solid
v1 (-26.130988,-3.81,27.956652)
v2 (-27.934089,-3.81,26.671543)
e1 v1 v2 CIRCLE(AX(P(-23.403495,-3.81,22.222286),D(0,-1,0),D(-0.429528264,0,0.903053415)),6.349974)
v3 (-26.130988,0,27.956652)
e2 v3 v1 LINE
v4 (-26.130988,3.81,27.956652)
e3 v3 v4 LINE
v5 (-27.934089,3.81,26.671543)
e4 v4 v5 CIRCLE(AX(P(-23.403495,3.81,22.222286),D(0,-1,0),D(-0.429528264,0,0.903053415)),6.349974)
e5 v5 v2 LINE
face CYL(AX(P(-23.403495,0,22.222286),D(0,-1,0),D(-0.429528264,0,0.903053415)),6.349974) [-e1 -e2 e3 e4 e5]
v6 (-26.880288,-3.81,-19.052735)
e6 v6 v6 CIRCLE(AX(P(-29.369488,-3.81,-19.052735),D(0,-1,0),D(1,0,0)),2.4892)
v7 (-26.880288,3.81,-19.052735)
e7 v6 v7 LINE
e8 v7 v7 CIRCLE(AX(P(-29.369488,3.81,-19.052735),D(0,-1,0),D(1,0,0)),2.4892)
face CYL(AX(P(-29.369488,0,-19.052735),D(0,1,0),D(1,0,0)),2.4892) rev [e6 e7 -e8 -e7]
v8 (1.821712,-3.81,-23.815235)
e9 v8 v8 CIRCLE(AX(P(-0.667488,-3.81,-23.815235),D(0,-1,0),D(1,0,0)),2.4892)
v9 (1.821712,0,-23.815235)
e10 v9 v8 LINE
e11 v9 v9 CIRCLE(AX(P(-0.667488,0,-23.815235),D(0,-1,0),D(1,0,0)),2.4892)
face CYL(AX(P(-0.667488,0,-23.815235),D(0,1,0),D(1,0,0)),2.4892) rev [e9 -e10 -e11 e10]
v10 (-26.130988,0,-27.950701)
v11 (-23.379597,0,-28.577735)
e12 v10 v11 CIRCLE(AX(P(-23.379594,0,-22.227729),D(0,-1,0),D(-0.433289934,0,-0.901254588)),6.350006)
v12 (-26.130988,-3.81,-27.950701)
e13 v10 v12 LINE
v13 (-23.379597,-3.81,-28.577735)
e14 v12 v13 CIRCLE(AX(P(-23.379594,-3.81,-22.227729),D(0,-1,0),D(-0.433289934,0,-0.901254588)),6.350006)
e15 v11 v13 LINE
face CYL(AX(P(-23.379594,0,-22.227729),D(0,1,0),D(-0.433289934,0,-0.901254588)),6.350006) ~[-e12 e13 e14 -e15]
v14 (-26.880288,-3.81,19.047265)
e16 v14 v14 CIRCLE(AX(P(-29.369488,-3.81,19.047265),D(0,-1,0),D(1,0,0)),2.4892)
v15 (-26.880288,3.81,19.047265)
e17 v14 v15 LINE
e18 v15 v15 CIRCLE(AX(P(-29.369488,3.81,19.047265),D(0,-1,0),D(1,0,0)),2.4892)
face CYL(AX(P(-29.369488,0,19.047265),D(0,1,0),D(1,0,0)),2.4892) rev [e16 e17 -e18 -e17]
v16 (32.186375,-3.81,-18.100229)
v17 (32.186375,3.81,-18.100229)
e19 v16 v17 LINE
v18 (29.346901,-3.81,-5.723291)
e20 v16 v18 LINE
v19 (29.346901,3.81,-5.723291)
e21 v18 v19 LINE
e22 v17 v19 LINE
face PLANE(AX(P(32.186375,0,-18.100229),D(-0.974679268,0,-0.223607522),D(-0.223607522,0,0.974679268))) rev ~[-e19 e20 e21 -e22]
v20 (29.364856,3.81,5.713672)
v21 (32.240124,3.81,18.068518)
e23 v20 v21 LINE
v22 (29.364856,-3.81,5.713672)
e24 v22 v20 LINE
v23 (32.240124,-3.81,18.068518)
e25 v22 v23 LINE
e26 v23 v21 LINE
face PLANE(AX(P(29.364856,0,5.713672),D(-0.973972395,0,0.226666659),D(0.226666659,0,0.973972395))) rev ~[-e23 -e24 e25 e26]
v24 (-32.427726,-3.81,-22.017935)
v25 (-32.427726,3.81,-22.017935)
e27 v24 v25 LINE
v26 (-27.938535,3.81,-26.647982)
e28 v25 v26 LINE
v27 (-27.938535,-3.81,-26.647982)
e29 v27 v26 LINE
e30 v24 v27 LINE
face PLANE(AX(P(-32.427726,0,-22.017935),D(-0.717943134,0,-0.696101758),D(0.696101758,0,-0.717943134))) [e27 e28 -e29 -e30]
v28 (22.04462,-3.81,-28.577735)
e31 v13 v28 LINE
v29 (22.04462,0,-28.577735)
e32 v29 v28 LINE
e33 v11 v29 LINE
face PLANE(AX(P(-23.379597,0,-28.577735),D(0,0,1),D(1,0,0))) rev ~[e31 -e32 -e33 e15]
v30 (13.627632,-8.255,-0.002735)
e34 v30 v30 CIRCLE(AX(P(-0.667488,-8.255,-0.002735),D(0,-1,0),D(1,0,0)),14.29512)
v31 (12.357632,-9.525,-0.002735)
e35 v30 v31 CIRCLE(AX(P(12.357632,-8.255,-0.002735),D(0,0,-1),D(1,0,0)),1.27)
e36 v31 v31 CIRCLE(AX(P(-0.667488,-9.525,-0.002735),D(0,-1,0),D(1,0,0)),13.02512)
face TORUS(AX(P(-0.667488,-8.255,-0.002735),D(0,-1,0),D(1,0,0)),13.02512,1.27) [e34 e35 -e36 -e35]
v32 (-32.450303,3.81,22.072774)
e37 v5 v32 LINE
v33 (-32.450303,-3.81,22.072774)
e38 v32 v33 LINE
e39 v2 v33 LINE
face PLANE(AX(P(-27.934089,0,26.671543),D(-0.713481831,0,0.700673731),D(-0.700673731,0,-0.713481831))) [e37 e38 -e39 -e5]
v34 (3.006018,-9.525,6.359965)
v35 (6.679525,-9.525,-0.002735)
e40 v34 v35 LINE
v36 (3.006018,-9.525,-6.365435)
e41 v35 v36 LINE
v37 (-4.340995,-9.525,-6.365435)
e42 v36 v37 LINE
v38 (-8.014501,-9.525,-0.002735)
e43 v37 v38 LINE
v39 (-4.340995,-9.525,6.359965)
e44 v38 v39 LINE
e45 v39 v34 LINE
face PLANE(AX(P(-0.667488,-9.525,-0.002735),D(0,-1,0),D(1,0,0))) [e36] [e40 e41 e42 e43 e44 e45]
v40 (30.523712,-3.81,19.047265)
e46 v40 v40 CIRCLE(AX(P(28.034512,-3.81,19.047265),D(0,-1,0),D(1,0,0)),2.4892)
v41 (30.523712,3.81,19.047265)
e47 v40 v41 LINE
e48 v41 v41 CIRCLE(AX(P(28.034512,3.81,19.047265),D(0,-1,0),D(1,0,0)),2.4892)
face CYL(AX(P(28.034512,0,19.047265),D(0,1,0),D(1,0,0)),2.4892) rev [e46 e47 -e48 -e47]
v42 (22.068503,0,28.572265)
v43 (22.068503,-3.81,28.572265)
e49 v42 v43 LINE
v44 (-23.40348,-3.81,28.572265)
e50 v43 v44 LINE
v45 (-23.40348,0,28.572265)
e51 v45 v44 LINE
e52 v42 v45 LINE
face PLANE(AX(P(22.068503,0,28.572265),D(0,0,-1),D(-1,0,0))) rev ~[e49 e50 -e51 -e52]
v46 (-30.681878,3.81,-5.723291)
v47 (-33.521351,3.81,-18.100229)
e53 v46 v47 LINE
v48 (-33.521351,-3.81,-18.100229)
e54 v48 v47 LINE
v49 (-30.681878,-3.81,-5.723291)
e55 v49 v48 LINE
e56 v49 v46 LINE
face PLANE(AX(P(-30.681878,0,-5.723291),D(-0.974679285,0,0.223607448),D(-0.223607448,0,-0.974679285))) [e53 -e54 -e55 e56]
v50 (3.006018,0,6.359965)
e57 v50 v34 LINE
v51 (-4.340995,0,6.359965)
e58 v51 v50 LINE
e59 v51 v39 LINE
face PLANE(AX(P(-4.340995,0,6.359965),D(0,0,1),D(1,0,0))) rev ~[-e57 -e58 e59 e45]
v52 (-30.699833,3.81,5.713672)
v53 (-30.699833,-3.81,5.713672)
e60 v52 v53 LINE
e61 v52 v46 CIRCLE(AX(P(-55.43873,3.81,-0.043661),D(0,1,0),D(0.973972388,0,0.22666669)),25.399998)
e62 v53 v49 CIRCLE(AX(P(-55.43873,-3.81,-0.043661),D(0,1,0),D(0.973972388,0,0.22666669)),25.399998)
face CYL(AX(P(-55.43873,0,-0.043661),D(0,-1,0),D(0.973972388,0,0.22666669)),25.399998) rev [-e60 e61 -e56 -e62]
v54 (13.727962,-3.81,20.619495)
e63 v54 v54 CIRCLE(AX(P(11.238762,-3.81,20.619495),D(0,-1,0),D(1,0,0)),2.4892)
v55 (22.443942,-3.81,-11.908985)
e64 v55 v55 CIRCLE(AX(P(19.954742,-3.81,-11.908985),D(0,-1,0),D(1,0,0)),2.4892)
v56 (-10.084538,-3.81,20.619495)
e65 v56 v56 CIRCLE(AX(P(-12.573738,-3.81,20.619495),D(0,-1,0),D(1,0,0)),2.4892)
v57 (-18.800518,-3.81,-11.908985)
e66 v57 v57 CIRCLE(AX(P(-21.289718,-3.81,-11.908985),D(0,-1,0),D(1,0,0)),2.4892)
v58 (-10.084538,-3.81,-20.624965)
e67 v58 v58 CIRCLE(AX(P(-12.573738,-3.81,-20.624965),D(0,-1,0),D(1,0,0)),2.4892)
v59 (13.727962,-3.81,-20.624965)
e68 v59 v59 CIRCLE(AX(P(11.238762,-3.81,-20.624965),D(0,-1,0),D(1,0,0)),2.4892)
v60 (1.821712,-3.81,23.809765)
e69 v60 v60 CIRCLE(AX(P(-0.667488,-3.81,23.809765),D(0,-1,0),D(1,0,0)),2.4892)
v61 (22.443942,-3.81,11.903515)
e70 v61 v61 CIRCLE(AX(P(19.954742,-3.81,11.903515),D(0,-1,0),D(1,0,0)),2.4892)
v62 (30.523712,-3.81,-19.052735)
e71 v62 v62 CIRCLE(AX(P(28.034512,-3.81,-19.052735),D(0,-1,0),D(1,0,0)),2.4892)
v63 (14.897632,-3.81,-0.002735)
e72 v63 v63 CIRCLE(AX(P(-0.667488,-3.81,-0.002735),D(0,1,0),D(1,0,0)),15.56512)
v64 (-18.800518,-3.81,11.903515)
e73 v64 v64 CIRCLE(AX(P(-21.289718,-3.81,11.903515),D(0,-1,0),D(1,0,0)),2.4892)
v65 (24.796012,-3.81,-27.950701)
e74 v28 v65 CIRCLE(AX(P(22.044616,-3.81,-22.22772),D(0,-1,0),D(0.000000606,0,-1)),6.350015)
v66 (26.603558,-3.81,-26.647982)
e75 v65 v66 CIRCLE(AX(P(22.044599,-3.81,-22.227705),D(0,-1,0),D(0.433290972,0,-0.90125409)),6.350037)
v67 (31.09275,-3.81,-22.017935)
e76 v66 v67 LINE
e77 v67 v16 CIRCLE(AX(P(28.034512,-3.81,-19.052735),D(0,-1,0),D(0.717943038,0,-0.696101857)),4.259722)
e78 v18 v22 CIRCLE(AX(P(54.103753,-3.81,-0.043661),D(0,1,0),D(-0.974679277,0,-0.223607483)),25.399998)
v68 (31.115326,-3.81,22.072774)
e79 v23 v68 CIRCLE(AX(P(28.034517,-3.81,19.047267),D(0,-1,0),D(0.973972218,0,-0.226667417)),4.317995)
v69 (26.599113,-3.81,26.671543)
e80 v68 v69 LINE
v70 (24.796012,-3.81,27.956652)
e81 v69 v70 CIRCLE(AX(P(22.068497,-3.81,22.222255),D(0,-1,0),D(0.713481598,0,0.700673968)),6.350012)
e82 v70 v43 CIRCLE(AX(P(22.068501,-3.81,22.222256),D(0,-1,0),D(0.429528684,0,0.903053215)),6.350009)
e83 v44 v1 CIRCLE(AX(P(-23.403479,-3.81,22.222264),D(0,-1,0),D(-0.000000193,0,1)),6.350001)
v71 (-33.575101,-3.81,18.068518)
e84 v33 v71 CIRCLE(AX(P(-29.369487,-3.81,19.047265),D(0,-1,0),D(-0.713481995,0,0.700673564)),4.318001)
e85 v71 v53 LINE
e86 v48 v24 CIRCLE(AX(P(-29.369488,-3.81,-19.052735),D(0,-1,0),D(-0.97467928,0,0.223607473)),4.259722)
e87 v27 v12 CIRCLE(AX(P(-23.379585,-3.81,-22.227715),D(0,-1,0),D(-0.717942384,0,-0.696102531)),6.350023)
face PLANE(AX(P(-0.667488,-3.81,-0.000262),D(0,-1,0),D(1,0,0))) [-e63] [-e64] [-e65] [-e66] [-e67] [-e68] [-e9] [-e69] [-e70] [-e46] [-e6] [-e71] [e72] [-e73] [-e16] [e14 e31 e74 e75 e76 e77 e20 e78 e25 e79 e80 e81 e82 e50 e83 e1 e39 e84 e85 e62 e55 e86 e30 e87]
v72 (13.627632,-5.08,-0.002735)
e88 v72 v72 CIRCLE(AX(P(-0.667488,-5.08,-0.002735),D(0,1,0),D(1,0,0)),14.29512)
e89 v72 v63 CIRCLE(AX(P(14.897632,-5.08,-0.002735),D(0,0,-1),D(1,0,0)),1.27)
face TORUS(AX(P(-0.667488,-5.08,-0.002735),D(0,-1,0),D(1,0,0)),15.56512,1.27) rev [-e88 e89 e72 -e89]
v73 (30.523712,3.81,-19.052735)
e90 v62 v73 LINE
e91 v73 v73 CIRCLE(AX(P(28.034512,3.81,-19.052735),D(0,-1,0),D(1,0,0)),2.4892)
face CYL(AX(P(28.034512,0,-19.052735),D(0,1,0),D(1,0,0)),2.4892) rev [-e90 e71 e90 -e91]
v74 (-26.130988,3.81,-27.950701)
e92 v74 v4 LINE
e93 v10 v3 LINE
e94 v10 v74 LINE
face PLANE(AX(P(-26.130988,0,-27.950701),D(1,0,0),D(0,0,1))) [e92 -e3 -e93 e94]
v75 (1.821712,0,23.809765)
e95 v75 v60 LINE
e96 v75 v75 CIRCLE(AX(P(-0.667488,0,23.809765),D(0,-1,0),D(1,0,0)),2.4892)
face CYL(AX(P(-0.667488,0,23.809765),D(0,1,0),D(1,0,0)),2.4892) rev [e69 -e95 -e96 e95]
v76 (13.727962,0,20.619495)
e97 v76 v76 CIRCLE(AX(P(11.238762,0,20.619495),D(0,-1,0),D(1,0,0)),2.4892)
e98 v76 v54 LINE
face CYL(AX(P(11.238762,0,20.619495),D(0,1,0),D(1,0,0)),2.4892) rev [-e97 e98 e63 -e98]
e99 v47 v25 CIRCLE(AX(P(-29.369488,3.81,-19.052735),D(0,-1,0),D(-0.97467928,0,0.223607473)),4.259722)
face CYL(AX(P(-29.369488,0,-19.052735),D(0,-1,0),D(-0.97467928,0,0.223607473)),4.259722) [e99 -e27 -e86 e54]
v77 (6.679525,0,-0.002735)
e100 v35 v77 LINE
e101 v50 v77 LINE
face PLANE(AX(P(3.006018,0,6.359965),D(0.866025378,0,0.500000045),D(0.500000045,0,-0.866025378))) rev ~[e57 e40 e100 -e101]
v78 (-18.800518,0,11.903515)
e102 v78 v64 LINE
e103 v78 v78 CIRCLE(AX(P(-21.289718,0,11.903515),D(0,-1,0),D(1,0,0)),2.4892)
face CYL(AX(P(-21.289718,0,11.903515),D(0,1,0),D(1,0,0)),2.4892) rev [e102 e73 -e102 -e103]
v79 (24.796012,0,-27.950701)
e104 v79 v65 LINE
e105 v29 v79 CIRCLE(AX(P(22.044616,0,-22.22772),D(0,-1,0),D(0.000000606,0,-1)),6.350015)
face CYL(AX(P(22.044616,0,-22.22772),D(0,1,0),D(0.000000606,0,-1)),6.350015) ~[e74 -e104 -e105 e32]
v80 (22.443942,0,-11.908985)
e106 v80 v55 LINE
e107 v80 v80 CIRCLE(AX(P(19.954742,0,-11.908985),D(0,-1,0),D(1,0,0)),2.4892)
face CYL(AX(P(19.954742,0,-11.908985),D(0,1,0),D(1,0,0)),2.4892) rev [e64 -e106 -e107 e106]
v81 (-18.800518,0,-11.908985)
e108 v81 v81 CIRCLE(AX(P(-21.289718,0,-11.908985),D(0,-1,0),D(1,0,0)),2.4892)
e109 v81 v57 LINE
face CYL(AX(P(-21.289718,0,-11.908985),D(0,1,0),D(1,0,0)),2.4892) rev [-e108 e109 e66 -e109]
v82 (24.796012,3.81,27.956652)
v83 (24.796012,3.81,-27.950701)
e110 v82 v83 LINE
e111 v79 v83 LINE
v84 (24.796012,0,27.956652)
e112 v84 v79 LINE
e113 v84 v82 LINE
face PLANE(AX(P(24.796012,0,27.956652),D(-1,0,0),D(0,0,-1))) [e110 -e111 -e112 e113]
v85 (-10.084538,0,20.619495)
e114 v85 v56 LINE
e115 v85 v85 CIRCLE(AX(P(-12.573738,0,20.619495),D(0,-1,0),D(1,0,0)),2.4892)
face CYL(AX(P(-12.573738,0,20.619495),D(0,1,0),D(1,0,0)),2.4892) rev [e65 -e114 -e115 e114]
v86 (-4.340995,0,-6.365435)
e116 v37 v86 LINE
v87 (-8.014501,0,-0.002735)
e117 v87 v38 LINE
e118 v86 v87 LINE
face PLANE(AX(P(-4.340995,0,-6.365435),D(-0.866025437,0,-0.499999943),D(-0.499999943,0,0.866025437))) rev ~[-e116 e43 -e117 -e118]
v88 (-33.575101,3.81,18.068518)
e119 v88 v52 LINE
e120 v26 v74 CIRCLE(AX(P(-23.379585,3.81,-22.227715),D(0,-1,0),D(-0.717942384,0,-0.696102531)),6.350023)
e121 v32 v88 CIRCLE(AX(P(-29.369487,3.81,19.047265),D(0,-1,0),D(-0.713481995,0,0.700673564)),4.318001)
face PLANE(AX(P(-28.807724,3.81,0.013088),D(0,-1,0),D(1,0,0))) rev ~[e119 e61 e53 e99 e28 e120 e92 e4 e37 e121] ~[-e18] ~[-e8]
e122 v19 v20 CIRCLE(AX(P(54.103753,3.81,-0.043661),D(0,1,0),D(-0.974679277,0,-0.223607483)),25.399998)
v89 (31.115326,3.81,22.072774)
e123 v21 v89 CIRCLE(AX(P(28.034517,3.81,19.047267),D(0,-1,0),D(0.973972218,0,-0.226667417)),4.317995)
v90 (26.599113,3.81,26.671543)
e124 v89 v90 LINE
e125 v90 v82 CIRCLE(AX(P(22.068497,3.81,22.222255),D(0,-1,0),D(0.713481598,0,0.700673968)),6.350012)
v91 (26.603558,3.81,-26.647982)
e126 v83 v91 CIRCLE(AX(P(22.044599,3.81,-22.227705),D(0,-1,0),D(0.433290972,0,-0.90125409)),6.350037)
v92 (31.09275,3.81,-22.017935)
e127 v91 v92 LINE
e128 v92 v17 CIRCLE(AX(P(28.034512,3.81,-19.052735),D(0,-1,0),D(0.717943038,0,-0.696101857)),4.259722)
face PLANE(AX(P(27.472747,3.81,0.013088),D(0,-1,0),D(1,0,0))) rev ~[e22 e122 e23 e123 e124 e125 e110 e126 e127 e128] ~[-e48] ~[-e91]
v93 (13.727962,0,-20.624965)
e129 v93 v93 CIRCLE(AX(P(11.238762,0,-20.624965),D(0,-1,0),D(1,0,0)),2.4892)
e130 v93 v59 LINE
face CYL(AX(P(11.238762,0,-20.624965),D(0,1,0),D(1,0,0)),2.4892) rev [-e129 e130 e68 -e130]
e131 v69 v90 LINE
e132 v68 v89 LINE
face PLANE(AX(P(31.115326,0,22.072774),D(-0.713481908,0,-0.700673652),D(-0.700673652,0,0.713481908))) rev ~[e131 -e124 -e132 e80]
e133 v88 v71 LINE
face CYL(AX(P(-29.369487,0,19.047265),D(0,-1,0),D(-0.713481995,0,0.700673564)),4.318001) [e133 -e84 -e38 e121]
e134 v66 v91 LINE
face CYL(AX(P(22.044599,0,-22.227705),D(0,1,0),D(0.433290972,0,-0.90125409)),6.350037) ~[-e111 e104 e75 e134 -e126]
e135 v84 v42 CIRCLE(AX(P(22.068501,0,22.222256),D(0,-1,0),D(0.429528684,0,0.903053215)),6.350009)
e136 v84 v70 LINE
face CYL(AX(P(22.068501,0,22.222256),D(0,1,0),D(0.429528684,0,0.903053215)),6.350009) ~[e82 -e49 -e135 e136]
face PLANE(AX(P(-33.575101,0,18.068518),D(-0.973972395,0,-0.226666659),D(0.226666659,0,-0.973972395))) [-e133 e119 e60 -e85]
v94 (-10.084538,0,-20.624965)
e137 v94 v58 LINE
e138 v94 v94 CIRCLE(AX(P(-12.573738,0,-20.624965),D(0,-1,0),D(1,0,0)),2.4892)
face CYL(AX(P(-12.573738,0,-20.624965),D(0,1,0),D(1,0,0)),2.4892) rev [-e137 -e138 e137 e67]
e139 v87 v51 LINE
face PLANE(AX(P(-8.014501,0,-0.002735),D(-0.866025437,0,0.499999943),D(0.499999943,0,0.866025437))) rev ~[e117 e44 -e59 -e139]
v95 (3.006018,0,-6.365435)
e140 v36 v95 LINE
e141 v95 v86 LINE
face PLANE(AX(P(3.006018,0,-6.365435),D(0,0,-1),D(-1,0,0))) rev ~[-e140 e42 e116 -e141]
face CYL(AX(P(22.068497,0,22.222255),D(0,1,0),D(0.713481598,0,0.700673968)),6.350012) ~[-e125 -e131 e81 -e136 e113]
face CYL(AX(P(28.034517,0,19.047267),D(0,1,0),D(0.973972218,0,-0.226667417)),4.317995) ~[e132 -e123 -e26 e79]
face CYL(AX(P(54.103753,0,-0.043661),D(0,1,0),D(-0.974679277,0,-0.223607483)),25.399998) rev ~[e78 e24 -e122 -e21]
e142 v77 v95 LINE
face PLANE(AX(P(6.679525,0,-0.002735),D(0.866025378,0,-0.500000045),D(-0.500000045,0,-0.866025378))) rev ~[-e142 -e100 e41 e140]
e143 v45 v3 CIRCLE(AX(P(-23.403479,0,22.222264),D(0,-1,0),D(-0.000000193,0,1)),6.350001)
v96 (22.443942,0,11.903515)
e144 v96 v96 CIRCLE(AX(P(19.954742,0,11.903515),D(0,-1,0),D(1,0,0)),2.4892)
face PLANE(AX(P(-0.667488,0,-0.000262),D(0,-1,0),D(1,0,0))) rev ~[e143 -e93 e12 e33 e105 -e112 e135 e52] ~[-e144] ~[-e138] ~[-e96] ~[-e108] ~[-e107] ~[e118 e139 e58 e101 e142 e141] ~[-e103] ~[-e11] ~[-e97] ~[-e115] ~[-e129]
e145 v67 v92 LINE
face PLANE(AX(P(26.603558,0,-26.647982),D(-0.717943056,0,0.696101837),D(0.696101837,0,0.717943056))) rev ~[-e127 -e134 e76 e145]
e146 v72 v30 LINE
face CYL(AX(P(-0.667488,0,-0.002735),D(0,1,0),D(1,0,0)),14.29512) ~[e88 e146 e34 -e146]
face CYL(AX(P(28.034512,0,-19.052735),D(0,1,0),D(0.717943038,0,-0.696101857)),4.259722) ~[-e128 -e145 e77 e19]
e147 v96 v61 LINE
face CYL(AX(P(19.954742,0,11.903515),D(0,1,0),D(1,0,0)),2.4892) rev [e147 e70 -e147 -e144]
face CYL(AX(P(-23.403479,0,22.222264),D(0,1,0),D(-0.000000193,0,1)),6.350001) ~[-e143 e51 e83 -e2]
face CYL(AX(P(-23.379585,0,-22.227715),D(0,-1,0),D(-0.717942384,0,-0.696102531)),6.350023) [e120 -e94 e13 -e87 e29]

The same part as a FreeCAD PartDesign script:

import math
import FreeCAD as App
import Part
import Sketcher
Q = App.Units.Quantity


def edges_at(feature, points):
    """Names of the edges that pass closest to the given points."""
    edges = feature.Shape.Edges
    near = lambda p: min(range(len(edges)), key=lambda i: edges[i].distToShape(Part.Vertex(*p))[0])
    return sorted({f"Edge{near(p) + 1}" for p in points})

doc = App.newDocument("Part")
body = doc.addObject("PartDesign::Body", "Body")

sketch1 = body.newObject("Sketcher::SketchObject", "Sketch")
sketch1.AttachmentSupport = (doc.getObject("XZ_Plane"), [""])
sketch1.MapMode = "FlatFace"
sketch1.addGeometry(Part.LineSegment(App.Vector(22.068503, 28.572265, 0), App.Vector(-23.40348, 28.572265, 0)), False)
sketch1.addGeometry(Part.ArcOfCircle(Part.Circle(App.Vector(-23.403479, 22.222264, 0), App.Vector(0, 0, 1), 6.350001), math.radians(90.000011), math.radians(115.437671)), False)
sketch1.addGeometry(Part.ArcOfCircle(Part.Circle(App.Vector(-23.403495, 22.222286, 0), App.Vector(0, 0, 1), 6.349974), math.radians(115.437626), math.radians(135.518958)), False)
sketch1.addGeometry(Part.LineSegment(App.Vector(-27.934089, 26.671543, 0), App.Vector(-32.450303, 22.072774, 0)), False)
sketch1.addGeometry(Part.ArcOfCircle(Part.Circle(App.Vector(-29.369487, 19.047265, 0), App.Vector(0, 0, 1), 4.318001), math.radians(135.518931), math.radians(193.100898)), False)
sketch1.addGeometry(Part.LineSegment(App.Vector(-33.575101, 18.068518, 0), App.Vector(-30.699833, 5.713672, 0)), False)
sketch1.addGeometry(Part.ArcOfCircle(Part.Circle(App.Vector(-55.43873, -0.043661, 0), App.Vector(0, 0, 1), 25.399998), math.radians(-12.921007), math.radians(13.100905)), False)
sketch1.addGeometry(Part.LineSegment(App.Vector(-30.681878, -5.723291, 0), App.Vector(-33.521351, -18.100229, 0)), False)
sketch1.addGeometry(Part.ArcOfCircle(Part.Circle(App.Vector(-29.369488, -19.052735, 0), App.Vector(0, 0, 1), 4.259722), math.radians(167.078994), math.radians(224.115086)), False)
sketch1.addGeometry(Part.LineSegment(App.Vector(-32.427726, -22.017935, 0), App.Vector(-27.938535, -26.647982, 0)), False)
sketch1.addGeometry(Part.ArcOfCircle(Part.Circle(App.Vector(-23.379585, -22.227715, 0), App.Vector(0, 0, 1), 6.350023), math.radians(-135.88486), math.radians(-115.676554)), False)
sketch1.addGeometry(Part.ArcOfCircle(Part.Circle(App.Vector(-23.379594, -22.227729, 0), App.Vector(0, 0, 1), 6.350006), math.radians(-115.67653), math.radians(-90.000026)), False)
sketch1.addGeometry(Part.LineSegment(App.Vector(-23.379597, -28.577735, 0), App.Vector(22.04462, -28.577735, 0)), False)
sketch1.addGeometry(Part.ArcOfCircle(Part.Circle(App.Vector(22.044616, -22.22772, 0), App.Vector(0, 0, 1), 6.350015), math.radians(-89.999965), math.radians(-64.323488)), False)
sketch1.addGeometry(Part.ArcOfCircle(Part.Circle(App.Vector(22.044599, -22.227705, 0), App.Vector(0, 0, 1), 6.350037), math.radians(-64.323405), math.radians(-44.115151)), False)
sketch1.addGeometry(Part.LineSegment(App.Vector(26.603558, -26.647982, 0), App.Vector(31.09275, -22.017935, 0)), False)
sketch1.addGeometry(Part.ArcOfCircle(Part.Circle(App.Vector(28.034512, -19.052735, 0), App.Vector(0, 0, 1), 4.259722), math.radians(-44.115086), math.radians(12.921006)), False)
sketch1.addGeometry(Part.LineSegment(App.Vector(32.186375, -18.100229, 0), App.Vector(29.346901, -5.723291, 0)), False)
sketch1.addGeometry(Part.ArcOfCircle(Part.Circle(App.Vector(54.103753, -0.043661, 0), App.Vector(0, 0, 1), 25.399998), math.radians(166.899095), math.radians(192.921007)), False)
sketch1.addGeometry(Part.LineSegment(App.Vector(29.364856, 5.713672, 0), App.Vector(32.240124, 18.068518, 0)), False)
sketch1.addGeometry(Part.ArcOfCircle(Part.Circle(App.Vector(28.034517, 19.047267, 0), App.Vector(0, 0, 1), 4.317995), math.radians(-13.100948), math.radians(44.481119)), False)
sketch1.addGeometry(Part.LineSegment(App.Vector(31.115326, 22.072774, 0), App.Vector(26.599113, 26.671543, 0)), False)
sketch1.addGeometry(Part.ArcOfCircle(Part.Circle(App.Vector(22.068497, 22.222255, 0), App.Vector(0, 0, 1), 6.350012), math.radians(44.481102), math.radians(64.562314)), False)
sketch1.addGeometry(Part.ArcOfCircle(Part.Circle(App.Vector(22.068501, 22.222256, 0), App.Vector(0, 0, 1), 6.350009), math.radians(64.562347), math.radians(89.99998)), False)
sketch1.addGeometry(Part.Circle(App.Vector(-29.369488, -19.052735, 0), App.Vector(0, 0, 1), 2.4892), False)
sketch1.addGeometry(Part.Circle(App.Vector(-12.573738, -20.624965, 0), App.Vector(0, 0, 1), 2.4892), False)
sketch1.addGeometry(Part.Circle(App.Vector(-21.289718, -11.908985, 0), App.Vector(0, 0, 1), 2.4892), False)
sketch1.addGeometry(Part.Circle(App.Vector(-0.667488, -23.815235, 0), App.Vector(0, 0, 1), 2.4892), False)
sketch1.addGeometry(Part.Circle(App.Vector(11.238762, -20.624965, 0), App.Vector(0, 0, 1), 2.4892), False)
sketch1.addGeometry(Part.Circle(App.Vector(28.034512, -19.052735, 0), App.Vector(0, 0, 1), 2.4892), False)
sketch1.addGeometry(Part.Circle(App.Vector(19.954742, -11.908985, 0), App.Vector(0, 0, 1), 2.4892), False)
sketch1.addGeometry(Part.Circle(App.Vector(-21.289718, 11.903515, 0), App.Vector(0, 0, 1), 2.4892), False)
sketch1.addGeometry(Part.Circle(App.Vector(-29.369488, 19.047265, 0), App.Vector(0, 0, 1), 2.4892), False)
sketch1.addGeometry(Part.Circle(App.Vector(-12.573738, 20.619495, 0), App.Vector(0, 0, 1), 2.4892), False)
sketch1.addGeometry(Part.LineSegment(App.Vector(-4.340995, -6.365435, 0), App.Vector(-8.014501, -0.002735, 0)), False)
sketch1.addGeometry(Part.LineSegment(App.Vector(-8.014501, -0.002735, 0), App.Vector(-4.340995, 6.359965, 0)), False)
sketch1.addGeometry(Part.LineSegment(App.Vector(-4.340995, 6.359965, 0), App.Vector(3.006018, 6.359965, 0)), False)
sketch1.addGeometry(Part.LineSegment(App.Vector(3.006018, 6.359965, 0), App.Vector(6.679525, -0.002735, 0)), False)
sketch1.addGeometry(Part.LineSegment(App.Vector(6.679525, -0.002735, 0), App.Vector(3.006018, -6.365435, 0)), False)
sketch1.addGeometry(Part.LineSegment(App.Vector(3.006018, -6.365435, 0), App.Vector(-4.340995, -6.365435, 0)), False)
sketch1.addGeometry(Part.Circle(App.Vector(19.954742, 11.903515, 0), App.Vector(0, 0, 1), 2.4892), False)
sketch1.addGeometry(Part.Circle(App.Vector(-0.667488, 23.809765, 0), App.Vector(0, 0, 1), 2.4892), False)
sketch1.addGeometry(Part.Circle(App.Vector(11.238762, 20.619495, 0), App.Vector(0, 0, 1), 2.4892), False)
sketch1.addGeometry(Part.Circle(App.Vector(28.034512, 19.047265, 0), App.Vector(0, 0, 1), 2.4892), False)
sketch1.addConstraint(Sketcher.Constraint("Coincident", 0, 2, 1, 1))
sketch1.addConstraint(Sketcher.Constraint("Coincident", 1, 2, 2, 1))
sketch1.addConstraint(Sketcher.Constraint("Coincident", 2, 2, 3, 1))
sketch1.addConstraint(Sketcher.Constraint("Coincident", 3, 2, 4, 1))
sketch1.addConstraint(Sketcher.Constraint("Coincident", 4, 2, 5, 1))
sketch1.addConstraint(Sketcher.Constraint("Coincident", 5, 2, 6, 2))
sketch1.addConstraint(Sketcher.Constraint("Coincident", 6, 1, 7, 1))
sketch1.addConstraint(Sketcher.Constraint("Coincident", 7, 2, 8, 1))
sketch1.addConstraint(Sketcher.Constraint("Coincident", 8, 2, 9, 1))
sketch1.addConstraint(Sketcher.Constraint("Coincident", 9, 2, 10, 1))
sketch1.addConstraint(Sketcher.Constraint("Coincident", 10, 2, 11, 1))
sketch1.addConstraint(Sketcher.Constraint("Coincident", 11, 2, 12, 1))
sketch1.addConstraint(Sketcher.Constraint("Coincident", 12, 2, 13, 1))
sketch1.addConstraint(Sketcher.Constraint("Coincident", 13, 2, 14, 1))
sketch1.addConstraint(Sketcher.Constraint("Coincident", 14, 2, 15, 1))
sketch1.addConstraint(Sketcher.Constraint("Coincident", 15, 2, 16, 1))
sketch1.addConstraint(Sketcher.Constraint("Coincident", 16, 2, 17, 1))
sketch1.addConstraint(Sketcher.Constraint("Coincident", 17, 2, 18, 2))
sketch1.addConstraint(Sketcher.Constraint("Coincident", 18, 1, 19, 1))
sketch1.addConstraint(Sketcher.Constraint("Coincident", 19, 2, 20, 1))
sketch1.addConstraint(Sketcher.Constraint("Coincident", 20, 2, 21, 1))
sketch1.addConstraint(Sketcher.Constraint("Coincident", 21, 2, 22, 1))
sketch1.addConstraint(Sketcher.Constraint("Coincident", 22, 2, 23, 1))
sketch1.addConstraint(Sketcher.Constraint("Coincident", 23, 2, 0, 1))
sketch1.addConstraint(Sketcher.Constraint("Coincident", 34, 2, 35, 1))
sketch1.addConstraint(Sketcher.Constraint("Coincident", 35, 2, 36, 1))
sketch1.addConstraint(Sketcher.Constraint("Coincident", 36, 2, 37, 1))
sketch1.addConstraint(Sketcher.Constraint("Coincident", 37, 2, 38, 1))
sketch1.addConstraint(Sketcher.Constraint("Coincident", 38, 2, 39, 1))
sketch1.addConstraint(Sketcher.Constraint("Coincident", 39, 2, 34, 1))
sketch1.addConstraint(Sketcher.Constraint("Horizontal", 0))
sketch1.addConstraint(Sketcher.Constraint("Horizontal", 12))
sketch1.addConstraint(Sketcher.Constraint("Horizontal", 36))
sketch1.addConstraint(Sketcher.Constraint("Horizontal", 39))
sketch1.addConstraint(Sketcher.Constraint("Coincident", 23, 3, 22, 3))
sketch1.addConstraint(Sketcher.Constraint("Coincident", 24, 3, 8, 3))
sketch1.addConstraint(Sketcher.Constraint("Coincident", 29, 3, 16, 3))
sketch1.addConstraint(Sketcher.Constraint("Coincident", 32, 3, 4, 3))
sketch1.addConstraint(Sketcher.Constraint("Coincident", 43, 3, 20, 3))
sketch1.addConstraint(Sketcher.Constraint("Radius", 6, Q("0.9999999 in")))
sketch1.addConstraint(Sketcher.Constraint("Radius", 18, Q("0.9999999 in")))
sketch1.addConstraint(Sketcher.Constraint("Radius", 1, Q("0.25 in")))
sketch1.addConstraint(Sketcher.Constraint("Radius", 4, Q("0.1700001 in")))
sketch1.addConstraint(Sketcher.Constraint("Diameter", 24, Q("0.196 in")))
sketch1.addConstraint(Sketcher.Constraint("Diameter", 25, Q("0.196 in")))
sketch1.addConstraint(Sketcher.Constraint("Diameter", 26, Q("0.196 in")))
sketch1.addConstraint(Sketcher.Constraint("Diameter", 27, Q("0.196 in")))
sketch1.addConstraint(Sketcher.Constraint("Diameter", 28, Q("0.196 in")))
sketch1.addConstraint(Sketcher.Constraint("Diameter", 29, Q("0.196 in")))
sketch1.addConstraint(Sketcher.Constraint("Diameter", 30, Q("0.196 in")))
sketch1.addConstraint(Sketcher.Constraint("Diameter", 31, Q("0.196 in")))
sketch1.addConstraint(Sketcher.Constraint("Diameter", 32, Q("0.196 in")))
sketch1.addConstraint(Sketcher.Constraint("Diameter", 33, Q("0.196 in")))
sketch1.addConstraint(Sketcher.Constraint("Diameter", 40, Q("0.196 in")))
sketch1.addConstraint(Sketcher.Constraint("Diameter", 41, Q("0.196 in")))
sketch1.addConstraint(Sketcher.Constraint("Diameter", 42, Q("0.196 in")))
sketch1.addConstraint(Sketcher.Constraint("Diameter", 43, Q("0.196 in")))
sketch1.addConstraint(Sketcher.Constraint("DistanceY", 8, 3, 4, 3, Q("1.5 in")))
sketch1.addConstraint(Sketcher.Constraint("DistanceY", 16, 3, 20, 3, Q("1.5000001 in")))
sketch1.addConstraint(Sketcher.Constraint("DistanceY", 10, 3, 2, 3, Q("1.75 in")))
sketch1.addConstraint(Sketcher.Constraint("DistanceX", 8, 3, 16, 3, Q("2.26 in")))
sketch1.addConstraint(Sketcher.Constraint("DistanceX", 27, 3, 29, 3, Q("1.13 in")))
sketch1.addConstraint(Sketcher.Constraint("Radius", 8, 4.259722))
sketch1.addConstraint(Sketcher.Constraint("Radius", 16, 4.259722))
sketch1.addConstraint(Sketcher.Constraint("Radius", 22, 6.350012))
sketch1.addConstraint(Sketcher.Constraint("DistanceY", 4, 3, 1, 3, Q("0.125 in")))
sketch1.addConstraint(Sketcher.Constraint("DistanceY", 20, 3, 1, 3, Q("0.1249999 in")))
sketch1.addConstraint(Sketcher.Constraint("DistanceY", 8, 3, 26, 3, Q("0.28125 in")))
sketch1.addConstraint(Sketcher.Constraint("DistanceX", 25, 3, 27, 3, Q("0.46875 in")))
sketch1.addConstraint(Sketcher.Constraint("DistanceX", 27, 3, 28, 3, Q("0.46875 in")))
sketch1.addConstraint(Sketcher.Constraint("DistanceY", 27, 3, 29, 3, Q("0.1875 in")))
sketch1.addConstraint(Sketcher.Constraint("DistanceY", 16, 3, 30, 3, Q("0.28125 in")))
sketch1.addConstraint(Sketcher.Constraint("DistanceY", 31, 3, 1, 3, Q("0.40625 in")))
sketch1.addConstraint(Sketcher.Constraint("DistanceY", 40, 3, 20, 3, Q("0.2812501 in")))
sketch1.addConstraint(Sketcher.Constraint("DistanceX", 33, 3, 41, 3, Q("0.46875 in")))
sketch1.addConstraint(Sketcher.Constraint("DistanceY", 1, 3, 41, 3, Q("0.0625 in")))
sketch1.addConstraint(Sketcher.Constraint("DistanceX", 41, 3, 42, 3, Q("0.46875 in")))
sketch1.addConstraint(Sketcher.Constraint("DistanceY", 12, 2, 29, 3, Q("0.375 in")))
sketch1.addConstraint(Sketcher.Constraint("DistanceY", 26, 3, 34, 2, Q("0.46875 in")))
sketch1.addConstraint(Sketcher.Constraint("DistanceY", 35, 2, 41, 3, Q("0.687 in")))
sketch1.addConstraint(Sketcher.Constraint("DistanceY", 30, 3, 37, 2, Q("0.46875 in")))
sketch1.addConstraint(Sketcher.Constraint("DistanceY", 38, 2, 36, 2, Q("0.501 in")))
sketch1.addConstraint(Sketcher.Constraint("Radius", 2, 6.349974))
sketch1.addConstraint(Sketcher.Constraint("Radius", 10, 6.350023))
sketch1.addConstraint(Sketcher.Constraint("Radius", 11, 6.350006))
sketch1.addConstraint(Sketcher.Constraint("Radius", 13, 6.350015))
sketch1.addConstraint(Sketcher.Constraint("Radius", 14, 6.350037))
sketch1.addConstraint(Sketcher.Constraint("Radius", 20, 4.317995))
sketch1.addConstraint(Sketcher.Constraint("DistanceY", 14, 3, 25, 3, Q("0.0631 in")))
sketch1.addConstraint(Sketcher.Constraint("DistanceY", 14, 3, 28, 3, Q("0.0631 in")))
sketch1.addConstraint(Sketcher.Constraint("DistanceX", 4, 3, 1, 2, Q("0.1275 in")))
sketch1.addConstraint(Sketcher.Constraint("DistanceY", 11, 3, 7, 2, Q("0.1625 in")))
sketch1.addConstraint(Sketcher.Constraint("DistanceX", 24, 3, 10, 2, Q("0.1275 in")))
sketch1.addConstraint(Sketcher.Constraint("DistanceX", 13, 2, 29, 3, Q("0.1275 in")))
sketch1.addConstraint(Sketcher.Constraint("DistanceX", 22, 2, 43, 3, Q("0.1275 in")))
sketch1.addConstraint(Sketcher.Constraint("DistanceX", -1, 1, 14, 3, 22.044599))
sketch1.addConstraint(Sketcher.Constraint("DistanceX", -1, 1, 23, 3, 22.068501))
sketch1.addConstraint(Sketcher.Constraint("DistanceX", 4, 2, -1, 1, 33.575101))
sketch1.addConstraint(Sketcher.Constraint("DistanceY", 10, 2, -1, 1, 27.950701))
sketch1.addConstraint(Sketcher.Constraint("DistanceY", 13, 2, -1, 1, 27.950701))
sketch1.addConstraint(Sketcher.Constraint("DistanceX", -1, 1, 17, 2, 29.346901))
sketch1.addConstraint(Sketcher.Constraint("DistanceX", 34, 2, -1, 1, 8.014501))
sketch1.addConstraint(Sketcher.Constraint("DistanceX", 10, 3, 13, 3, 45.424201))
sketch1.addConstraint(Sketcher.Constraint("DistanceX", 13, 3, 20, 3, 5.989901))
sketch1.addConstraint(Sketcher.Constraint("DistanceX", 2, 2, 1, 2, 1.803101))
sketch1.addConstraint(Sketcher.Constraint("DistanceX", 4, 2, 3, 2, 1.124798))
sketch1.addConstraint(Sketcher.Constraint("DistanceY", 5, 2, 3, 2, 16.359102))
sketch1.addConstraint(Sketcher.Constraint("DistanceY", 8, 2, 24, 3, 2.9652))
sketch1.addConstraint(Sketcher.Constraint("DistanceY", 15, 2, 29, 3, 2.9652))
sketch1.addConstraint(Sketcher.Constraint("DistanceX", 21, 2, 43, 3, 1.435399))
sketch1.addConstraint(Sketcher.Constraint("Distance", 3, 6.445531))
sketch1.addConstraint(Sketcher.Constraint("Distance", 21, 6.44553))
sketch1.addConstraint(Sketcher.Constraint("DistanceX", 0, 2, 0, 1, 45.471983))
sketch1.addConstraint(Sketcher.Constraint("DistanceX", 12, 1, 12, 2, 45.424217))
sketch1.addConstraint(Sketcher.Constraint("DistanceX", 36, 1, 36, 2, 7.347013))
sketch1.addConstraint(Sketcher.Constraint("DistanceX", 39, 2, 39, 1, 7.347013))
sketch1.addConstraint(Sketcher.Constraint("DistanceX", 1, 3, -1, 1, 23.403479))
sketch1.addConstraint(Sketcher.Constraint("DistanceX", 6, 3, -1, 1, 55.43873))
sketch1.addConstraint(Sketcher.Constraint("DistanceY", 6, 3, -1, 1, 0.043661))
sketch1.addConstraint(Sketcher.Constraint("DistanceX", 8, 3, -1, 1, 29.369488))
sketch1.addConstraint(Sketcher.Constraint("DistanceY", 11, 3, -1, 1, 22.227729))
sketch1.addConstraint(Sketcher.Constraint("DistanceY", 18, 3, -1, 1, 0.043661))
sketch1.addConstraint(Sketcher.Constraint("DistanceX", 26, 3, -1, 1, 21.289718))
sketch1.addConstraint(Sketcher.Constraint("DistanceX", -1, 1, 30, 3, 19.954742))
sketch1.addConstraint(Sketcher.Constraint("DistanceX", 31, 3, -1, 1, 21.289718))
sketch1.addConstraint(Sketcher.Constraint("DistanceX", -1, 1, 40, 3, 19.954742))
sketch1.addConstraint(Sketcher.Constraint("DistanceX", 0, 2, -1, 1, 23.40348))
sketch1.addConstraint(Sketcher.Constraint("DistanceX", 6, 1, -1, 1, 30.681878))
sketch1.addConstraint(Sketcher.Constraint("DistanceY", 9, 2, -1, 1, 26.647982))
sketch1.addConstraint(Sketcher.Constraint("DistanceX", -1, 1, 12, 2, 22.04462))
sketch1.addConstraint(Sketcher.Constraint("DistanceX", -1, 1, 14, 2, 26.603558))
sketch1.addConstraint(Sketcher.Constraint("DistanceY", 16, 2, -1, 1, 18.100229))
sketch1.addConstraint(Sketcher.Constraint("DistanceY", 17, 2, -1, 1, 5.723291))
sketch1.addConstraint(Sketcher.Constraint("DistanceY", -1, 1, 18, 1, 5.713672))
sketch1.addConstraint(Sketcher.Constraint("DistanceY", -1, 1, 19, 2, 18.068518))
sketch1.addConstraint(Sketcher.Constraint("DistanceX", -1, 1, 36, 2, 3.006018))
sketch1.addConstraint(Sketcher.Constraint("DistanceX", -1, 1, 38, 2, 3.006018))
sketch1.addConstraint(Sketcher.Constraint("DistanceX", 1, 3, 33, 3, 10.829741))
sketch1.addConstraint(Sketcher.Constraint("DistanceY", 33, 3, 1, 3, 1.602769))
sketch1.addConstraint(Sketcher.Constraint("DistanceY", 42, 3, 22, 3, 1.60276))
sketch1.addConstraint(Sketcher.Constraint("DistanceX", 35, 2, 37, 2, 11.02052))
pad1 = body.newObject("PartDesign::Pad", "Pad")
pad1.Profile = sketch1
pad1.Length = Q("0.15 in")

sketch2 = body.newObject("Sketcher::SketchObject", "Sketch001")
sketch2.AttachmentSupport = (doc.getObject("XZ_Plane"), [""])
sketch2.MapMode = "FlatFace"
sketch2.addGeometry(Part.Circle(App.Vector(-1, 0, 0), App.Vector(0, 0, 1), 14), False)
sketch2.addGeometry(Part.LineSegment(App.Vector(-4, -6, 0), App.Vector(-8, 0, 0)), False)
sketch2.addGeometry(Part.LineSegment(App.Vector(-8, 0, 0), App.Vector(-4, 6, 0)), False)
sketch2.addGeometry(Part.LineSegment(App.Vector(-4, 6, 0), App.Vector(3, 6, 0)), False)
sketch2.addGeometry(Part.LineSegment(App.Vector(3, 6, 0), App.Vector(7, 0, 0)), False)
sketch2.addGeometry(Part.LineSegment(App.Vector(7, 0, 0), App.Vector(3, -6, 0)), False)
sketch2.addGeometry(Part.LineSegment(App.Vector(3, -6, 0), App.Vector(-4, -6, 0)), False)
sketch2.addConstraint(Sketcher.Constraint("Coincident", 1, 2, 2, 1))
sketch2.addConstraint(Sketcher.Constraint("Coincident", 2, 2, 3, 1))
sketch2.addConstraint(Sketcher.Constraint("Coincident", 3, 2, 4, 1))
sketch2.addConstraint(Sketcher.Constraint("Coincident", 4, 2, 5, 1))
sketch2.addConstraint(Sketcher.Constraint("Coincident", 5, 2, 6, 1))
sketch2.addConstraint(Sketcher.Constraint("Coincident", 6, 2, 1, 1))
sketch2.addConstraint(Sketcher.Constraint("Horizontal", 3))
sketch2.addConstraint(Sketcher.Constraint("Horizontal", 6))
sketch2.addConstraint(Sketcher.Constraint("Parallel", 1, 4))
sketch2.addConstraint(Sketcher.Constraint("Parallel", 2, 5))
sketch2.addConstraint(Sketcher.Constraint("Horizontal", 0, 3, 1, 2))
sketch2.addConstraint(Sketcher.Constraint("Horizontal", 1, 2, 4, 2))
sketch2.addConstraint(Sketcher.Constraint("Vertical", 3, 2, 5, 2))
sketch2.addConstraint(Sketcher.Constraint("Vertical", 2, 2, 6, 2))
sketch2.addConstraint(Sketcher.Constraint("Angle", 1, Q("119.999996 deg")))
sketch2.addConstraint(Sketcher.Constraint("Diameter", 0, Q("1.1256 in")))
sketch2.addConstraint(Sketcher.Constraint("DistanceY", 5, 2, 3, 2, Q("0.501 in")))
sketch2.addConstraint(Sketcher.Constraint("DistanceX", 1, 2, -1, 1, 8.014501))
sketch2.addConstraint(Sketcher.Constraint("DistanceX", 3, 1, 3, 2, 7.347013))
sketch2.addConstraint(Sketcher.Constraint("DistanceX", 0, 3, -1, 1, 0.667488))
sketch2.addConstraint(Sketcher.Constraint("DistanceY", 0, 3, -1, 1, 0.002735))
pad2 = body.newObject("PartDesign::Pad", "Pad001")
pad2.Profile = sketch2
pad2.Length = Q("0.375 in")

sketch3 = body.newObject("Sketcher::SketchObject", "Sketch002")
sketch3.AttachmentSupport = (doc.getObject("XZ_Plane"), [""])
sketch3.MapMode = "FlatFace"
sketch3.addGeometry(Part.LineSegment(App.Vector(-26.130988, -27.950701, 0), App.Vector(-26.130988, 27.956652, 0)), False)
sketch3.addGeometry(Part.ArcOfCircle(Part.Circle(App.Vector(-23.403495, 22.222286, 0), App.Vector(0, 0, 1), 6.349974), math.radians(115.437626), math.radians(135.518958)), False)
sketch3.addGeometry(Part.LineSegment(App.Vector(-27.934089, 26.671543, 0), App.Vector(-32.450303, 22.072774, 0)), False)
sketch3.addGeometry(Part.ArcOfCircle(Part.Circle(App.Vector(-29.369487, 19.047265, 0), App.Vector(0, 0, 1), 4.318001), math.radians(135.518931), math.radians(193.100898)), False)
sketch3.addGeometry(Part.LineSegment(App.Vector(-33.575101, 18.068518, 0), App.Vector(-30.699833, 5.713672, 0)), False)
sketch3.addGeometry(Part.ArcOfCircle(Part.Circle(App.Vector(-55.43873, -0.043661, 0), App.Vector(0, 0, 1), 25.399998), math.radians(-12.921007), math.radians(13.100905)), False)
sketch3.addGeometry(Part.LineSegment(App.Vector(-30.681878, -5.723291, 0), App.Vector(-33.521351, -18.100229, 0)), False)
sketch3.addGeometry(Part.ArcOfCircle(Part.Circle(App.Vector(-29.369488, -19.052735, 0), App.Vector(0, 0, 1), 4.259722), math.radians(167.078994), math.radians(224.115086)), False)
sketch3.addGeometry(Part.LineSegment(App.Vector(-32.427726, -22.017935, 0), App.Vector(-27.938535, -26.647982, 0)), False)
sketch3.addGeometry(Part.ArcOfCircle(Part.Circle(App.Vector(-23.379585, -22.227715, 0), App.Vector(0, 0, 1), 6.350023), math.radians(-135.88486), math.radians(-115.676554)), False)
sketch3.addGeometry(Part.Circle(App.Vector(-29.369488, -19.052735, 0), App.Vector(0, 0, 1), 2.4892), False)
sketch3.addGeometry(Part.Circle(App.Vector(-29.369488, 19.047265, 0), App.Vector(0, 0, 1), 2.4892), False)
sketch3.addGeometry(Part.ArcOfCircle(Part.Circle(App.Vector(22.068497, 22.222255, 0), App.Vector(0, 0, 1), 6.350012), math.radians(44.481102), math.radians(64.562314)), False)
sketch3.addGeometry(Part.LineSegment(App.Vector(24.796012, 27.956652, 0), App.Vector(24.796012, -27.950701, 0)), False)
sketch3.addGeometry(Part.ArcOfCircle(Part.Circle(App.Vector(22.044599, -22.227705, 0), App.Vector(0, 0, 1), 6.350037), math.radians(-64.323405), math.radians(-44.115151)), False)
sketch3.addGeometry(Part.LineSegment(App.Vector(26.603558, -26.647982, 0), App.Vector(31.09275, -22.017935, 0)), False)
sketch3.addGeometry(Part.ArcOfCircle(Part.Circle(App.Vector(28.034512, -19.052735, 0), App.Vector(0, 0, 1), 4.259722), math.radians(-44.115086), math.radians(12.921006)), False)
sketch3.addGeometry(Part.LineSegment(App.Vector(32.186375, -18.100229, 0), App.Vector(29.346901, -5.723291, 0)), False)
sketch3.addGeometry(Part.ArcOfCircle(Part.Circle(App.Vector(54.103753, -0.043661, 0), App.Vector(0, 0, 1), 25.399998), math.radians(166.899095), math.radians(192.921007)), False)
sketch3.addGeometry(Part.LineSegment(App.Vector(29.364856, 5.713672, 0), App.Vector(32.240124, 18.068518, 0)), False)
sketch3.addGeometry(Part.ArcOfCircle(Part.Circle(App.Vector(28.034517, 19.047267, 0), App.Vector(0, 0, 1), 4.317995), math.radians(-13.100948), math.radians(44.481119)), False)
sketch3.addGeometry(Part.LineSegment(App.Vector(31.115326, 22.072774, 0), App.Vector(26.599113, 26.671543, 0)), False)
sketch3.addGeometry(Part.Circle(App.Vector(28.034512, -19.052735, 0), App.Vector(0, 0, 1), 2.4892), False)
sketch3.addGeometry(Part.Circle(App.Vector(28.034512, 19.047265, 0), App.Vector(0, 0, 1), 2.4892), False)
sketch3.addConstraint(Sketcher.Constraint("Coincident", 0, 2, 1, 1))
sketch3.addConstraint(Sketcher.Constraint("Coincident", 1, 2, 2, 1))
sketch3.addConstraint(Sketcher.Constraint("Coincident", 2, 2, 3, 1))
sketch3.addConstraint(Sketcher.Constraint("Coincident", 3, 2, 4, 1))
sketch3.addConstraint(Sketcher.Constraint("Coincident", 4, 2, 5, 2))
sketch3.addConstraint(Sketcher.Constraint("Coincident", 5, 1, 6, 1))
sketch3.addConstraint(Sketcher.Constraint("Coincident", 6, 2, 7, 1))
sketch3.addConstraint(Sketcher.Constraint("Coincident", 7, 2, 8, 1))
sketch3.addConstraint(Sketcher.Constraint("Coincident", 8, 2, 9, 1))
sketch3.addConstraint(Sketcher.Constraint("Coincident", 9, 2, 0, 1))
sketch3.addConstraint(Sketcher.Constraint("Coincident", 12, 2, 13, 1))
sketch3.addConstraint(Sketcher.Constraint("Coincident", 13, 2, 14, 1))
sketch3.addConstraint(Sketcher.Constraint("Coincident", 14, 2, 15, 1))
sketch3.addConstraint(Sketcher.Constraint("Coincident", 15, 2, 16, 1))
sketch3.addConstraint(Sketcher.Constraint("Coincident", 16, 2, 17, 1))
sketch3.addConstraint(Sketcher.Constraint("Coincident", 17, 2, 18, 2))
sketch3.addConstraint(Sketcher.Constraint("Coincident", 18, 1, 19, 1))
sketch3.addConstraint(Sketcher.Constraint("Coincident", 19, 2, 20, 1))
sketch3.addConstraint(Sketcher.Constraint("Coincident", 20, 2, 21, 1))
sketch3.addConstraint(Sketcher.Constraint("Coincident", 21, 2, 12, 1))
sketch3.addConstraint(Sketcher.Constraint("Vertical", 0))
sketch3.addConstraint(Sketcher.Constraint("Vertical", 13))
sketch3.addConstraint(Sketcher.Constraint("Coincident", 10, 3, 7, 3))
sketch3.addConstraint(Sketcher.Constraint("Coincident", 11, 3, 3, 3))
sketch3.addConstraint(Sketcher.Constraint("Coincident", 22, 3, 16, 3))
sketch3.addConstraint(Sketcher.Constraint("Coincident", 23, 3, 20, 3))
sketch3.addConstraint(Sketcher.Constraint("Radius", 5, Q("0.9999999 in")))
sketch3.addConstraint(Sketcher.Constraint("Radius", 18, Q("0.9999999 in")))
sketch3.addConstraint(Sketcher.Constraint("Radius", 3, Q("0.1700001 in")))
sketch3.addConstraint(Sketcher.Constraint("Diameter", 10, Q("0.196 in")))
sketch3.addConstraint(Sketcher.Constraint("Diameter", 11, Q("0.196 in")))
sketch3.addConstraint(Sketcher.Constraint("Diameter", 22, Q("0.196 in")))
sketch3.addConstraint(Sketcher.Constraint("Diameter", 23, Q("0.196 in")))
sketch3.addConstraint(Sketcher.Constraint("DistanceY", 7, 3, 3, 3, Q("1.5 in")))
sketch3.addConstraint(Sketcher.Constraint("DistanceY", 16, 3, 20, 3, Q("1.5000001 in")))
sketch3.addConstraint(Sketcher.Constraint("DistanceY", 9, 3, 1, 3, Q("1.75 in")))
sketch3.addConstraint(Sketcher.Constraint("DistanceX", 10, 3, 16, 3, Q("2.26 in")))
sketch3.addConstraint(Sketcher.Constraint("Radius", 7, 4.259722))
sketch3.addConstraint(Sketcher.Constraint("Radius", 12, 6.350012))
sketch3.addConstraint(Sketcher.Constraint("Radius", 16, 4.259722))
sketch3.addConstraint(Sketcher.Constraint("Radius", 1, 6.349974))
sketch3.addConstraint(Sketcher.Constraint("Radius", 9, 6.350023))
sketch3.addConstraint(Sketcher.Constraint("Radius", 14, 6.350037))
sketch3.addConstraint(Sketcher.Constraint("Radius", 20, 4.317995))
sketch3.addConstraint(Sketcher.Constraint("DistanceX", 3, 3, 0, 2, Q("0.1275 in")))
sketch3.addConstraint(Sketcher.Constraint("DistanceX", 7, 3, 0, 2, Q("0.1275 in")))
sketch3.addConstraint(Sketcher.Constraint("DistanceX", 12, 2, 23, 3, Q("0.1275 in")))
sketch3.addConstraint(Sketcher.Constraint("DistanceX", 12, 2, 16, 3, Q("0.1275 in")))
sketch3.addConstraint(Sketcher.Constraint("DistanceX", -1, 1, 14, 3, 22.044599))
sketch3.addConstraint(Sketcher.Constraint("DistanceX", 3, 2, -1, 1, 33.575101))
sketch3.addConstraint(Sketcher.Constraint("DistanceY", 9, 2, -1, 1, 27.950701))
sketch3.addConstraint(Sketcher.Constraint("DistanceY", 13, 2, -1, 1, 27.950701))
sketch3.addConstraint(Sketcher.Constraint("DistanceX", -1, 1, 17, 2, 29.346901))
sketch3.addConstraint(Sketcher.Constraint("DistanceX", 14, 3, 12, 3, 0.023898))
sketch3.addConstraint(Sketcher.Constraint("DistanceX", 1, 2, 0, 2, 1.803101))
sketch3.addConstraint(Sketcher.Constraint("DistanceX", 3, 2, 2, 2, 1.124798))
sketch3.addConstraint(Sketcher.Constraint("DistanceY", 4, 2, 2, 2, 16.359102))
sketch3.addConstraint(Sketcher.Constraint("DistanceY", 6, 2, 4, 2, 23.813901))
sketch3.addConstraint(Sketcher.Constraint("DistanceY", 7, 2, 10, 3, 2.9652))
sketch3.addConstraint(Sketcher.Constraint("DistanceY", 15, 2, 22, 3, 2.9652))
sketch3.addConstraint(Sketcher.Constraint("DistanceX", 12, 2, 21, 2, 1.803101))
sketch3.addConstraint(Sketcher.Constraint("Distance", 2, 6.445531))
sketch3.addConstraint(Sketcher.Constraint("Distance", 21, 6.44553))
sketch3.addConstraint(Sketcher.Constraint("DistanceY", 0, 1, 0, 2, 55.907353))
sketch3.addConstraint(Sketcher.Constraint("DistanceY", 13, 2, 13, 1, 55.907353))
sketch3.addConstraint(Sketcher.Constraint("DistanceX", 5, 3, -1, 1, 55.43873))
sketch3.addConstraint(Sketcher.Constraint("DistanceY", 5, 3, -1, 1, 0.043661))
sketch3.addConstraint(Sketcher.Constraint("DistanceX", 7, 3, -1, 1, 29.369488))
sketch3.addConstraint(Sketcher.Constraint("DistanceY", 18, 3, -1, 1, 0.043661))
sketch3.addConstraint(Sketcher.Constraint("DistanceX", 5, 1, -1, 1, 30.681878))
sketch3.addConstraint(Sketcher.Constraint("DistanceY", 6, 2, -1, 1, 18.100229))
sketch3.addConstraint(Sketcher.Constraint("DistanceY", 8, 2, -1, 1, 26.647982))
sketch3.addConstraint(Sketcher.Constraint("DistanceX", -1, 1, 14, 2, 26.603558))
sketch3.addConstraint(Sketcher.Constraint("DistanceY", 16, 2, -1, 1, 18.100229))
sketch3.addConstraint(Sketcher.Constraint("DistanceY", 17, 2, -1, 1, 5.723291))
sketch3.addConstraint(Sketcher.Constraint("DistanceY", -1, 1, 18, 1, 5.713672))
sketch3.addConstraint(Sketcher.Constraint("DistanceY", -1, 1, 19, 2, 18.068518))
sketch3.addConstraint(Sketcher.Constraint("DistanceY", 14, 3, 16, 3, 3.17497))
pad3 = body.newObject("PartDesign::Pad", "Pad002")
pad3.Profile = sketch3
pad3.Length = Q("0.15 in")
pad3.Reversed = True
doc.recompute()

fillet = body.newObject("PartDesign::Fillet", "Fillet")
fillet.Base = (pad3, edges_at(pad3, [(-14.963, -9.525, -0.003)]))
fillet.Radius = Q("0.05 in")
doc.recompute()

fillet2 = body.newObject("PartDesign::Fillet", "Fillet001")
fillet2.Base = (fillet, edges_at(fillet, [(-14.963, -3.81, -0.003)]))
fillet2.Radius = Q("0.05 in")

doc.recompute()
